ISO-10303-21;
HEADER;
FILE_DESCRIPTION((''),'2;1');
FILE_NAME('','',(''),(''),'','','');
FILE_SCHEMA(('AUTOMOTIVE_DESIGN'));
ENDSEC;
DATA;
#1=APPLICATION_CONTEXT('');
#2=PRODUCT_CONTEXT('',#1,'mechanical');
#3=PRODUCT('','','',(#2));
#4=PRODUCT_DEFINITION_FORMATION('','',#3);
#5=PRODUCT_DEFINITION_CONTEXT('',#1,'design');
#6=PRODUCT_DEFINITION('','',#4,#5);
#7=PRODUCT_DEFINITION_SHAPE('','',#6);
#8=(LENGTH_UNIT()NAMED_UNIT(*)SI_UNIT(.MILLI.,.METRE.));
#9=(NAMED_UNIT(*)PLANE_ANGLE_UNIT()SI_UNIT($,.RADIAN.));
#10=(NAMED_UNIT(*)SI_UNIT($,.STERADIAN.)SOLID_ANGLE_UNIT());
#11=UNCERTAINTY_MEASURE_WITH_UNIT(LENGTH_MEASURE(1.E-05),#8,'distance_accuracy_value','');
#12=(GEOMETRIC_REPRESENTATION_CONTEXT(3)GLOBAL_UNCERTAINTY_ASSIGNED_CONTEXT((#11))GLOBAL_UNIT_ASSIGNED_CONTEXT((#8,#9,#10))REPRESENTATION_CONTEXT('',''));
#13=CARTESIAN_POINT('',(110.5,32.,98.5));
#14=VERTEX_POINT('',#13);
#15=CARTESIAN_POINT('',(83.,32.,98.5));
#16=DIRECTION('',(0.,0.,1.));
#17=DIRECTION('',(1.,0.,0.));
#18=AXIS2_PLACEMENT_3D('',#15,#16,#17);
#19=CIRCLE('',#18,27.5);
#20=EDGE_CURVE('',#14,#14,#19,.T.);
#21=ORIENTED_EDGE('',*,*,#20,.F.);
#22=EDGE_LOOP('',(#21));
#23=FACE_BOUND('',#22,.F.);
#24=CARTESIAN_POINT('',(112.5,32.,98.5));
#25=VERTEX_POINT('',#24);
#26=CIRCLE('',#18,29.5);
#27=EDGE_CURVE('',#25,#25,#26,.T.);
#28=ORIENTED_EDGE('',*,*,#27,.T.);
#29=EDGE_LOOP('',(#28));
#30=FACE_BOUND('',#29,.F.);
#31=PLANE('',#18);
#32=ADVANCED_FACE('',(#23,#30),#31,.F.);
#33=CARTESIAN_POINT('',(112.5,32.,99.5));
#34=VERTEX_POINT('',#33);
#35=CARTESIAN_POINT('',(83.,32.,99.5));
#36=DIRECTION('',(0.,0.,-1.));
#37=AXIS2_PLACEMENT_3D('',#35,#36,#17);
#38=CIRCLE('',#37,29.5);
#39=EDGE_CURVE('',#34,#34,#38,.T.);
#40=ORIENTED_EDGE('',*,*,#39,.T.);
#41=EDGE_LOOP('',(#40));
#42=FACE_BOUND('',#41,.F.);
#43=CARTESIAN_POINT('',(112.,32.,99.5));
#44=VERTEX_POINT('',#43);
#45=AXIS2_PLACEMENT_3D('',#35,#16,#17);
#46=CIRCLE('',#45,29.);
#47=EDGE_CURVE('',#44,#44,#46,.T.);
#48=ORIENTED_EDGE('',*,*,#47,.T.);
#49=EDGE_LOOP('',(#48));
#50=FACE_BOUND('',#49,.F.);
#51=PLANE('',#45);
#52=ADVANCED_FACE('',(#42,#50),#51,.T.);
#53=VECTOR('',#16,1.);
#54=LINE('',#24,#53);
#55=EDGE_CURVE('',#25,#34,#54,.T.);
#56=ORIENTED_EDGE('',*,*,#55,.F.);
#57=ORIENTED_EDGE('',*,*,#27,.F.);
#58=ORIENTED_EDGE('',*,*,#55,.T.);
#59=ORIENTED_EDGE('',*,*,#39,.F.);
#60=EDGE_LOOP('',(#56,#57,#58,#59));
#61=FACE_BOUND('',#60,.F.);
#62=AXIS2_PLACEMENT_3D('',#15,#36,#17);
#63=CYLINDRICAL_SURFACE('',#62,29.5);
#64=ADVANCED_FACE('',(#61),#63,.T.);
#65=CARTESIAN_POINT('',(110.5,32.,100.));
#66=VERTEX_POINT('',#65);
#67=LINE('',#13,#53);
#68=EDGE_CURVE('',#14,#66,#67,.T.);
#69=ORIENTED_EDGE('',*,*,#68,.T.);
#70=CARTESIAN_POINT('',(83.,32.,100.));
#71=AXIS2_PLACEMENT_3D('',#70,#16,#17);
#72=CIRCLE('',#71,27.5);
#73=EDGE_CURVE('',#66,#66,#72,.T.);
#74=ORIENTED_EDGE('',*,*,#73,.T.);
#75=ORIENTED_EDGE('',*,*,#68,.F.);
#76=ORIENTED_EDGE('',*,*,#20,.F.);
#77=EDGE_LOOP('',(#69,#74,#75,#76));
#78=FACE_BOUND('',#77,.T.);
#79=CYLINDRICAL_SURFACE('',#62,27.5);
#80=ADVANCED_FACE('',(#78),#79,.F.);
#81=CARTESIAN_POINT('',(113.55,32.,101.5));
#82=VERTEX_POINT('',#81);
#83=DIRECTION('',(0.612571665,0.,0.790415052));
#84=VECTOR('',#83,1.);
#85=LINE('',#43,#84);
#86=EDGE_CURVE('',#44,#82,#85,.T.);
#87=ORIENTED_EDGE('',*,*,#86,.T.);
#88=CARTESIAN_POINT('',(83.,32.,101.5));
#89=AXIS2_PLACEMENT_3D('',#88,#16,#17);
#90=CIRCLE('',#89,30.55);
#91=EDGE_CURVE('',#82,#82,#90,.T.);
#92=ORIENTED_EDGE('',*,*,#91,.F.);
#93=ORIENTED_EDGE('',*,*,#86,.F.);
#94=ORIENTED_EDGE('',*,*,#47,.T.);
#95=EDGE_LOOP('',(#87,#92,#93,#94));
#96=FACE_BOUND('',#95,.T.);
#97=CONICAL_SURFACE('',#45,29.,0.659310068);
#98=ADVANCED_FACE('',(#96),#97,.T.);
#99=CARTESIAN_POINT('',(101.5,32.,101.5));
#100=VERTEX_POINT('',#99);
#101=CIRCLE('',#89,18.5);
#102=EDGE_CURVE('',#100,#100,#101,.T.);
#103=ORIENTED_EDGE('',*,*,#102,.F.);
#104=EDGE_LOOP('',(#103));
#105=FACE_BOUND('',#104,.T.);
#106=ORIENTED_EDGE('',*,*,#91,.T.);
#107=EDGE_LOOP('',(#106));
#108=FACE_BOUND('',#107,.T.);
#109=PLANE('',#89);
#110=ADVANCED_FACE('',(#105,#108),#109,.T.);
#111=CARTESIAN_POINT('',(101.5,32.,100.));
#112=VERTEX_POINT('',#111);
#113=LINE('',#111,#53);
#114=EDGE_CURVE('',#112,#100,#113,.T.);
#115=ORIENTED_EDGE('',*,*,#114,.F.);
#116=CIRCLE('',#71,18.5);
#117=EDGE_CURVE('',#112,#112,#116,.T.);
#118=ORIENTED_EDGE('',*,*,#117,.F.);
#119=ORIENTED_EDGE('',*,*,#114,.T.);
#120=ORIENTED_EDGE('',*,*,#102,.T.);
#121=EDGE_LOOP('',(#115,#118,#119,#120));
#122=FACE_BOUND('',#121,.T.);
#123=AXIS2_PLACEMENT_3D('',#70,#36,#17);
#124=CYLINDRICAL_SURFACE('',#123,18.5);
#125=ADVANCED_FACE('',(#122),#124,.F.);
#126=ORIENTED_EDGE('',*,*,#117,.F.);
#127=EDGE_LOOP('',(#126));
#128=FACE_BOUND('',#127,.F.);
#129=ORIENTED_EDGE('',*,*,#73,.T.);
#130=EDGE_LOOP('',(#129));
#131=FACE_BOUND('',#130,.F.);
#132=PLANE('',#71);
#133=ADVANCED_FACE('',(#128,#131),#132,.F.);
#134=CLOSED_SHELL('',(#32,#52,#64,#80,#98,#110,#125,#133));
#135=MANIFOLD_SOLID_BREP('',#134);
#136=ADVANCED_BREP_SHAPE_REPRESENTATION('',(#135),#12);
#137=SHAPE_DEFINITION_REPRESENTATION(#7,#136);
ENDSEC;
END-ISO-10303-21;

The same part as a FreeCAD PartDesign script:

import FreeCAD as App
import Part
import Sketcher

V = App.Vector
Q = App.Units.Quantity

doc = App.newDocument("Part")
params = doc.addObject("Spreadsheet::Sheet", "Params")
for row, (alias, value) in enumerate([
    ("sketch1_width", "29 mm"),
    ("sketch1_width2", "60 mm"),
    ("sketch1_height", "40 mm"),
    ("revolution_angle", "360 deg"),
    ("sketch2_width", "31 mm"),
    ("sketch2_width2", "62 mm"),
    ("sketch2_height", "40 mm"),
    ("revolution2_angle", "360 deg"),
    ("sketch3_diameter", "37 mm"),
    ("pad1_length", "1.5 mm"),
    ("sketch4_diameter", "62 mm"),
    ("pad2_length", "1.5 mm"),
    ("sketch5_diameter", "55 mm"),
    ("pad3_length", "10 mm"),
    ("sketch6_diameter", "55 mm"),
    ("pad4_length", "1.5 mm"),
    ("sketch7_diameter", "59 mm"),
    ("pad5_length", "1.5 mm"),
], start=1):
    params.set(f"A{row}", alias)
    params.set(f"B{row}", "=" + value)
    params.setAlias(f"B{row}", alias)

body = doc.addObject("PartDesign::Body", "Body")

# Sketch on XZ plane
sketch1 = doc.addObject("Sketcher::SketchObject", "Sketch")
body.addObject(sketch1)
sketch1.AttachmentSupport = (doc.XZ_Plane, [""])
sketch1.MapMode = "FlatFace"
sketch1.addGeometry(Part.LineSegment(V(0, 0, 0), V(29, 0, 0)), False)
sketch1.addGeometry(Part.LineSegment(V(29, 0, 0), V(60, 40, 0)), False)
sketch1.addGeometry(Part.LineSegment(V(60, 40, 0), V(0, 40, 0)), False)
sketch1.addGeometry(Part.LineSegment(V(0, 40, 0), V(0, 0, 0)), False)
sketch1.addConstraint(Sketcher.Constraint("Coincident", 0, 2, 1, 1))
sketch1.addConstraint(Sketcher.Constraint("Coincident", 1, 2, 2, 1))
sketch1.addConstraint(Sketcher.Constraint("Coincident", 2, 2, 3, 1))
sketch1.addConstraint(Sketcher.Constraint("Coincident", 3, 2, 0, 1))
sketch1.addConstraint(Sketcher.Constraint("Horizontal", 0))
sketch1.addConstraint(Sketcher.Constraint("Horizontal", 2))
sketch1.addConstraint(Sketcher.Constraint("Vertical", 3))
sketch1.addConstraint(Sketcher.Constraint("Coincident", 3, 2, -1, 1))
sketch1.addConstraint(Sketcher.Constraint("DistanceX", 0, 1, 0, 2, Q("29 mm")))
sketch1.addConstraint(Sketcher.Constraint("DistanceX", 2, 2, 2, 1, Q("60 mm")))
sketch1.addConstraint(Sketcher.Constraint("DistanceY", 3, 2, 3, 1, Q("40 mm")))
sketch1.setExpression("Constraints[8]", "Params.sketch1_width")
sketch1.setExpression("Constraints[9]", "Params.sketch1_width2")
sketch1.setExpression("Constraints[10]", "Params.sketch1_height")
revolution = doc.addObject("PartDesign::Revolution", "Revolution")
body.addObject(revolution)
revolution.Profile = sketch1
revolution.ReferenceAxis = (sketch1, ["V_Axis"])
revolution.setExpression("Angle", "Params.revolution_angle")
body2 = doc.addObject("PartDesign::Body", "Body001")

# Sketch on XZ plane
sketch2 = doc.addObject("Sketcher::SketchObject", "Sketch001")
body2.addObject(sketch2)
sketch2.AttachmentSupport = (doc.getObject("XZ_Plane001"), [""])
sketch2.MapMode = "FlatFace"
sketch2.addGeometry(Part.LineSegment(V(0, 0, 0), V(31, 0, 0)), False)
sketch2.addGeometry(Part.LineSegment(V(31, 0, 0), V(62, 40, 0)), False)
sketch2.addGeometry(Part.LineSegment(V(62, 40, 0), V(0, 40, 0)), False)
sketch2.addGeometry(Part.LineSegment(V(0, 40, 0), V(0, 0, 0)), False)
sketch2.addConstraint(Sketcher.Constraint("Coincident", 0, 2, 1, 1))
sketch2.addConstraint(Sketcher.Constraint("Coincident", 1, 2, 2, 1))
sketch2.addConstraint(Sketcher.Constraint("Coincident", 2, 2, 3, 1))
sketch2.addConstraint(Sketcher.Constraint("Coincident", 3, 2, 0, 1))
sketch2.addConstraint(Sketcher.Constraint("Horizontal", 0))
sketch2.addConstraint(Sketcher.Constraint("Horizontal", 2))
sketch2.addConstraint(Sketcher.Constraint("Vertical", 3))
sketch2.addConstraint(Sketcher.Constraint("Coincident", 3, 2, -1, 1))
sketch2.addConstraint(Sketcher.Constraint("DistanceX", 0, 1, 0, 2, Q("31 mm")))
sketch2.addConstraint(Sketcher.Constraint("DistanceX", 2, 2, 2, 1, Q("62 mm")))
sketch2.addConstraint(Sketcher.Constraint("DistanceY", 3, 2, 3, 1, Q("40 mm")))
sketch2.setExpression("Constraints[8]", "Params.sketch2_width")
sketch2.setExpression("Constraints[9]", "Params.sketch2_width2")
sketch2.setExpression("Constraints[10]", "Params.sketch2_height")
revolution2 = doc.addObject("PartDesign::Revolution", "Revolution001")
body2.addObject(revolution2)
revolution2.Profile = sketch2
revolution2.ReferenceAxis = (sketch2, ["V_Axis"])
revolution2.setExpression("Angle", "Params.revolution2_angle")
doc.recompute()

boolean = doc.addObject("PartDesign::Boolean", "Boolean")
body2.addObject(boolean)
boolean.Type = "Cut"
boolean.addObjects([body])
body3 = doc.addObject("PartDesign::Body", "Body002")
doc.recompute()

body2.Placement = App.Placement(V(83, 32, 99.5), App.Rotation(V(0, 0, 1), 0))
boolean2 = doc.addObject("PartDesign::Boolean", "Boolean001")
body3.addObject(boolean2)
boolean2.Type = "Fuse"
boolean2.addObjects([body2])
body4 = doc.addObject("PartDesign::Body", "Body003")

# Sketch on XY plane
sketch3 = doc.addObject("Sketcher::SketchObject", "Sketch002")
body4.addObject(sketch3)
sketch3.AttachmentSupport = (doc.getObject("XY_Plane003"), [""])
sketch3.MapMode = "FlatFace"
sketch3.addGeometry(Part.Circle(V(0, 0, 0), V(0, 0, 1), 18), False)
sketch3.addConstraint(Sketcher.Constraint("Coincident", 0, 3, -1, 1))
sketch3.addConstraint(Sketcher.Constraint("Diameter", 0, Q("37 mm")))
sketch3.setExpression("Constraints[1]", "Params.sketch3_diameter")
pad1 = doc.addObject("PartDesign::Pad", "Pad")
body4.addObject(pad1)
pad1.Profile = sketch3
pad1.setExpression("Length", "Params.pad1_length")
body5 = doc.addObject("PartDesign::Body", "Body004")

# Sketch on XY plane
sketch4 = doc.addObject("Sketcher::SketchObject", "Sketch003")
body5.addObject(sketch4)
sketch4.AttachmentSupport = (doc.getObject("XY_Plane004"), [""])
sketch4.MapMode = "FlatFace"
sketch4.addGeometry(Part.Circle(V(0, 0, 0), V(0, 0, 1), 31), False)
sketch4.addConstraint(Sketcher.Constraint("Coincident", 0, 3, -1, 1))
sketch4.addConstraint(Sketcher.Constraint("Diameter", 0, Q("62 mm")))
sketch4.setExpression("Constraints[1]", "Params.sketch4_diameter")
pad2 = doc.addObject("PartDesign::Pad", "Pad001")
body5.addObject(pad2)
pad2.Profile = sketch4
pad2.setExpression("Length", "Params.pad2_length")
doc.recompute()

boolean3 = doc.addObject("PartDesign::Boolean", "Boolean002")
body5.addObject(boolean3)
boolean3.Type = "Cut"
boolean3.addObjects([body4])
body6 = doc.addObject("PartDesign::Body", "Body005")
doc.recompute()

body5.Placement = App.Placement(V(0, 0, 1.5), App.Rotation(V(0, 0, 1), 0))
boolean4 = doc.addObject("PartDesign::Boolean", "Boolean003")
body6.addObject(boolean4)
boolean4.Type = "Fuse"
boolean4.addObjects([body5])
body7 = doc.addObject("PartDesign::Body", "Body006")

# Sketch on XY plane
sketch5 = doc.addObject("Sketcher::SketchObject", "Sketch004")
body7.addObject(sketch5)
sketch5.AttachmentSupport = (doc.getObject("XY_Plane006"), [""])
sketch5.MapMode = "FlatFace"
sketch5.addGeometry(Part.Circle(V(0, 0, 0), V(0, 0, 1), 28), False)
sketch5.addConstraint(Sketcher.Constraint("Coincident", 0, 3, -1, 1))
sketch5.addConstraint(Sketcher.Constraint("Diameter", 0, Q("55 mm")))
sketch5.setExpression("Constraints[1]", "Params.sketch5_diameter")
pad3 = doc.addObject("PartDesign::Pad", "Pad002")
body7.addObject(pad3)
pad3.Profile = sketch5
pad3.setExpression("Length", "Params.pad3_length")
body8 = doc.addObject("PartDesign::Body", "Body007")

# Sketch on XY plane
sketch6 = doc.addObject("Sketcher::SketchObject", "Sketch005")
body8.addObject(sketch6)
sketch6.AttachmentSupport = (doc.getObject("XY_Plane007"), [""])
sketch6.MapMode = "FlatFace"
sketch6.addGeometry(Part.Circle(V(0, 0, 0), V(0, 0, 1), 28), False)
sketch6.addConstraint(Sketcher.Constraint("Coincident", 0, 3, -1, 1))
sketch6.addConstraint(Sketcher.Constraint("Diameter", 0, Q("55 mm")))
sketch6.setExpression("Constraints[1]", "Params.sketch6_diameter")
pad4 = doc.addObject("PartDesign::Pad", "Pad003")
body8.addObject(pad4)
pad4.Profile = sketch6
pad4.setExpression("Length", "Params.pad4_length")
body9 = doc.addObject("PartDesign::Body", "Body008")

# Sketch on XY plane
sketch7 = doc.addObject("Sketcher::SketchObject", "Sketch006")
body9.addObject(sketch7)
sketch7.AttachmentSupport = (doc.getObject("XY_Plane008"), [""])
sketch7.MapMode = "FlatFace"
sketch7.addGeometry(Part.Circle(V(0, 0, 0), V(0, 0, 1), 30), False)
sketch7.addConstraint(Sketcher.Constraint("Coincident", 0, 3, -1, 1))
sketch7.addConstraint(Sketcher.Constraint("Diameter", 0, Q("59 mm")))
sketch7.setExpression("Constraints[1]", "Params.sketch7_diameter")
pad5 = doc.addObject("PartDesign::Pad", "Pad004")
body9.addObject(pad5)
pad5.Profile = sketch7
pad5.setExpression("Length", "Params.pad5_length")
doc.recompute()

boolean5 = doc.addObject("PartDesign::Boolean", "Boolean004")
body9.addObject(boolean5)
boolean5.Type = "Cut"
boolean5.addObjects([body8])
doc.recompute()

boolean6 = doc.addObject("PartDesign::Boolean", "Boolean005")
body9.addObject(boolean6)
boolean6.Type = "Cut"
boolean6.addObjects([body7])
doc.recompute()

boolean7 = doc.addObject("PartDesign::Boolean", "Boolean006")
body9.addObject(boolean7)
boolean7.Type = "Fuse"
boolean7.addObjects([body6])
body10 = doc.addObject("PartDesign::Body", "Body009")
doc.recompute()

body9.Placement = App.Placement(V(83, 32, 98.5), App.Rotation(V(0, 0, 1), 0))
boolean8 = doc.addObject("PartDesign::Boolean", "Boolean007")
body10.addObject(boolean8)
boolean8.Type = "Fuse"
boolean8.addObjects([body9])
doc.recompute()

boolean9 = doc.addObject("PartDesign::Boolean", "Boolean008")
body10.addObject(boolean9)
boolean9.Type = "Cut"
boolean9.addObjects([body3])

doc.recompute()
